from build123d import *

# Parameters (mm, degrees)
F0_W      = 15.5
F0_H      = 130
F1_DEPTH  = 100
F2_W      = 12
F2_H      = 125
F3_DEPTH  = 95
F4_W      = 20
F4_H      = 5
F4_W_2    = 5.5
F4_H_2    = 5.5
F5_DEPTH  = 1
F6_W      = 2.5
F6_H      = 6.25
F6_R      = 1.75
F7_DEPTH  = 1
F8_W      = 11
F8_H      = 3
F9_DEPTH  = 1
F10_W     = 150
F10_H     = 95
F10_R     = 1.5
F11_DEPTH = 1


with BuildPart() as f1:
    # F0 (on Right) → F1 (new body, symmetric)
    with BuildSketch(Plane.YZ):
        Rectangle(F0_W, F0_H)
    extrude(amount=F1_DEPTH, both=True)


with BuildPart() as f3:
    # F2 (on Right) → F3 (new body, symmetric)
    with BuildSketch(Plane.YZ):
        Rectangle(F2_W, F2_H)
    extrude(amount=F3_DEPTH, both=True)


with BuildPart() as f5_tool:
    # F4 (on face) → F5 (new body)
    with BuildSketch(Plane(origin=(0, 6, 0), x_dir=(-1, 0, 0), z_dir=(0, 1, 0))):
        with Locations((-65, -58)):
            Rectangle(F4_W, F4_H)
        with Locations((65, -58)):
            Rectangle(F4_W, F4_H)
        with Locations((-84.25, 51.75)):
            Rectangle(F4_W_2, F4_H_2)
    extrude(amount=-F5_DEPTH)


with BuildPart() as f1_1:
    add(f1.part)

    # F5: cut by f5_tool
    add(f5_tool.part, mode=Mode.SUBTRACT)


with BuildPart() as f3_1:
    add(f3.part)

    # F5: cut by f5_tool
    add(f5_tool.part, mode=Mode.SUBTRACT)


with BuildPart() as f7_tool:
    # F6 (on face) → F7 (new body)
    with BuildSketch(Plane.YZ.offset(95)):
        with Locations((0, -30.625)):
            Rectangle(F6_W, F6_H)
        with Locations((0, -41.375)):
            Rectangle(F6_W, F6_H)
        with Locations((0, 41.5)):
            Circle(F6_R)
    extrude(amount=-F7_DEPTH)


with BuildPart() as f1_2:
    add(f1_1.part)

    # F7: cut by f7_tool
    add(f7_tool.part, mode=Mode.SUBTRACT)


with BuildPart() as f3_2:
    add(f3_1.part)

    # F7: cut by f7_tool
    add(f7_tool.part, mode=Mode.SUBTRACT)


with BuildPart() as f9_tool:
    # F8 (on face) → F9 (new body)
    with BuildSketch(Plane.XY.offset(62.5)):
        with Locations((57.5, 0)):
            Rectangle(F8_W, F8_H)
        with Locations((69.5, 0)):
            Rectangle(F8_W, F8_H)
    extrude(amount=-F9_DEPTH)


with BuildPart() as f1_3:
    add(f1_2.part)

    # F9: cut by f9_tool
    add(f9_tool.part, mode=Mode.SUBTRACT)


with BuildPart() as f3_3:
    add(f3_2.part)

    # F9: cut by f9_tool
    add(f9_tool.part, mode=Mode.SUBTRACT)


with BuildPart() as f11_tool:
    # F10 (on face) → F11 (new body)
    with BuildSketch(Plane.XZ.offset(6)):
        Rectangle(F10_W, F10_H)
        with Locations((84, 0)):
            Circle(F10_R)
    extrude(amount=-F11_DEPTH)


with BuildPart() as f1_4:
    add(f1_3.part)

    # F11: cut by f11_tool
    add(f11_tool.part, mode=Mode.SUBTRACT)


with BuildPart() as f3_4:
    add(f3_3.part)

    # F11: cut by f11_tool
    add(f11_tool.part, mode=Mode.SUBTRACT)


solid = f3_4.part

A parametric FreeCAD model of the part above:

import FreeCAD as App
import Part
import Sketcher
from FreeCAD import Vector

doc = App.newDocument("Part")
body = doc.addObject("PartDesign::Body", "Body")

# Sketch on YZ plane
sketch1 = doc.addObject("Sketcher::SketchObject", "Sketch")
body.addObject(sketch1)
sketch1.AttachmentSupport = (doc.YZ_Plane, [""])
sketch1.MapMode = "FlatFace"
sketch1.addGeometry(Part.LineSegment(Vector(-7.75, 65, 0), Vector(-7.75, -65, 0)), False)
sketch1.addGeometry(Part.LineSegment(Vector(-7.75, -65, 0), Vector(7.75, -65, 0)), False)
sketch1.addGeometry(Part.LineSegment(Vector(7.75, -65, 0), Vector(7.75, 65, 0)), False)
sketch1.addGeometry(Part.LineSegment(Vector(7.75, 65, 0), Vector(-7.75, 65, 0)), False)
sketch1.addConstraint(Sketcher.Constraint("Coincident", 0, 2, 1, 1))
sketch1.addConstraint(Sketcher.Constraint("Coincident", 1, 2, 2, 1))
sketch1.addConstraint(Sketcher.Constraint("Coincident", 2, 2, 3, 1))
sketch1.addConstraint(Sketcher.Constraint("Coincident", 3, 2, 0, 1))
sketch1.addConstraint(Sketcher.Constraint("Vertical", 0))
sketch1.addConstraint(Sketcher.Constraint("Horizontal", 1))
sketch1.addConstraint(Sketcher.Constraint("Vertical", 2))
sketch1.addConstraint(Sketcher.Constraint("Horizontal", 3))
sketch1.addConstraint(Sketcher.Constraint("Symmetric", 0, 2, 2, 2, -1, 1))
sketch1.addConstraint(Sketcher.Constraint("DistanceY", 0, 2, 0, 1, 130.0))
sketch1.addConstraint(Sketcher.Constraint("DistanceX", 1, 1, 1, 2, 15.5))
pad1 = doc.addObject("PartDesign::Pad", "Pad")
body.addObject(pad1)
pad1.Profile = sketch1
pad1.Length = 200
pad1.Midplane = True
body2 = doc.addObject("PartDesign::Body", "Body001")

# Sketch on YZ plane
sketch2 = doc.addObject("Sketcher::SketchObject", "Sketch001")
body2.addObject(sketch2)
sketch2.AttachmentSupport = (doc.getObject("YZ_Plane001"), [""])
sketch2.MapMode = "FlatFace"
sketch2.addGeometry(Part.LineSegment(Vector(-6, 62.5, 0), Vector(-6, -62.5, 0)), False)
sketch2.addGeometry(Part.LineSegment(Vector(-6, -62.5, 0), Vector(6, -62.5, 0)), False)
sketch2.addGeometry(Part.LineSegment(Vector(6, -62.5, 0), Vector(6, 62.5, 0)), False)
sketch2.addGeometry(Part.LineSegment(Vector(6, 62.5, 0), Vector(-6, 62.5, 0)), False)
sketch2.addConstraint(Sketcher.Constraint("Coincident", 0, 2, 1, 1))
sketch2.addConstraint(Sketcher.Constraint("Coincident", 1, 2, 2, 1))
sketch2.addConstraint(Sketcher.Constraint("Coincident", 2, 2, 3, 1))
sketch2.addConstraint(Sketcher.Constraint("Coincident", 3, 2, 0, 1))
sketch2.addConstraint(Sketcher.Constraint("Vertical", 0))
sketch2.addConstraint(Sketcher.Constraint("Horizontal", 1))
sketch2.addConstraint(Sketcher.Constraint("Vertical", 2))
sketch2.addConstraint(Sketcher.Constraint("Horizontal", 3))
sketch2.addConstraint(Sketcher.Constraint("Symmetric", 0, 2, 2, 2, -1, 1))
sketch2.addConstraint(Sketcher.Constraint("DistanceX", 1, 1, 1, 2, 12.0))
sketch2.addConstraint(Sketcher.Constraint("DistanceY", 0, 2, 0, 1, 125.0))
pad2 = doc.addObject("PartDesign::Pad", "Pad001")
body2.addObject(pad2)
pad2.Profile = sketch2
pad2.Length = 190
pad2.Midplane = True
body3 = doc.addObject("PartDesign::Body", "Body002")
body3.AllowCompound = True

# Sketch on XZ plane
sketch3 = doc.addObject("Sketcher::SketchObject", "Sketch002")
body3.addObject(sketch3)
sketch3.AttachmentSupport = (doc.getObject("XZ_Plane002"), [""])
sketch3.MapMode = "FlatFace"
sketch3.AttachmentOffset = App.Placement(Vector(0, 0, -6), App.Rotation())
sketch3.addGeometry(Part.LineSegment(Vector(75, -55.5, 0), Vector(75, -60.5, 0)), False)
sketch3.addGeometry(Part.LineSegment(Vector(75, -60.5, 0), Vector(55, -60.5, 0)), False)
sketch3.addGeometry(Part.LineSegment(Vector(55, -60.5, 0), Vector(55, -55.5, 0)), False)
sketch3.addGeometry(Part.LineSegment(Vector(55, -55.5, 0), Vector(75, -55.5, 0)), False)
sketch3.addGeometry(Part.LineSegment(Vector(-55, -55.5, 0), Vector(-55, -60.5, 0)), False)
sketch3.addGeometry(Part.LineSegment(Vector(-55, -60.5, 0), Vector(-75, -60.5, 0)), False)
sketch3.addGeometry(Part.LineSegment(Vector(-75, -60.5, 0), Vector(-75, -55.5, 0)), False)
sketch3.addGeometry(Part.LineSegment(Vector(-75, -55.5, 0), Vector(-55, -55.5, 0)), False)
sketch3.addGeometry(Part.LineSegment(Vector(87, 54.5, 0), Vector(87, 49, 0)), False)
sketch3.addGeometry(Part.LineSegment(Vector(87, 49, 0), Vector(81.5, 49, 0)), False)
sketch3.addGeometry(Part.LineSegment(Vector(81.5, 49, 0), Vector(81.5, 54.5, 0)), False)
sketch3.addGeometry(Part.LineSegment(Vector(81.5, 54.5, 0), Vector(87, 54.5, 0)), False)
sketch3.addConstraint(Sketcher.Constraint("Coincident", 0, 2, 1, 1))
sketch3.addConstraint(Sketcher.Constraint("Coincident", 1, 2, 2, 1))
sketch3.addConstraint(Sketcher.Constraint("Coincident", 2, 2, 3, 1))
sketch3.addConstraint(Sketcher.Constraint("Coincident", 3, 2, 0, 1))
sketch3.addConstraint(Sketcher.Constraint("Coincident", 4, 2, 5, 1))
sketch3.addConstraint(Sketcher.Constraint("Coincident", 5, 2, 6, 1))
sketch3.addConstraint(Sketcher.Constraint("Coincident", 6, 2, 7, 1))
sketch3.addConstraint(Sketcher.Constraint("Coincident", 7, 2, 4, 1))
sketch3.addConstraint(Sketcher.Constraint("Coincident", 8, 2, 9, 1))
sketch3.addConstraint(Sketcher.Constraint("Coincident", 9, 2, 10, 1))
sketch3.addConstraint(Sketcher.Constraint("Coincident", 10, 2, 11, 1))
sketch3.addConstraint(Sketcher.Constraint("Coincident", 11, 2, 8, 1))
sketch3.addConstraint(Sketcher.Constraint("Vertical", 0))
sketch3.addConstraint(Sketcher.Constraint("Horizontal", 1))
sketch3.addConstraint(Sketcher.Constraint("Vertical", 2))
sketch3.addConstraint(Sketcher.Constraint("Horizontal", 3))
sketch3.addConstraint(Sketcher.Constraint("Vertical", 4))
sketch3.addConstraint(Sketcher.Constraint("Horizontal", 5))
sketch3.addConstraint(Sketcher.Constraint("Vertical", 6))
sketch3.addConstraint(Sketcher.Constraint("Horizontal", 7))
sketch3.addConstraint(Sketcher.Constraint("Vertical", 8))
sketch3.addConstraint(Sketcher.Constraint("Horizontal", 9))
sketch3.addConstraint(Sketcher.Constraint("Vertical", 10))
sketch3.addConstraint(Sketcher.Constraint("Horizontal", 11))
sketch3.addConstraint(Sketcher.Constraint("Symmetric", 1, 2, 4, 2, -2))
sketch3.addConstraint(Sketcher.Constraint("Symmetric", 3, 2, 6, 2, -2))
sketch3.addConstraint(Sketcher.Constraint("Equal", 11, 8))
sketch3.addConstraint(Sketcher.Constraint("DistanceX", 1, 2, 1, 1, 20.0))
sketch3.addConstraint(Sketcher.Constraint("DistanceY", 0, 2, 0, 1, 5.0))
sketch3.addConstraint(Sketcher.Constraint("DistanceX", 9, 2, 9, 1, 5.5))
sketch3.addConstraint(Sketcher.Constraint("DistanceX", -1, 1, 0, 2, 75.0))
sketch3.addConstraint(Sketcher.Constraint("DistanceX", -1, 1, 8, 2, 87.0))
sketch3.addConstraint(Sketcher.Constraint("DistanceY", -1, 1, 8, 2, 49.0))
sketch3.addConstraint(Sketcher.Constraint("DistanceY", 3, 2, 10, 2, 110.0))
pad3 = doc.addObject("PartDesign::Pad", "Pad002")
body3.addObject(pad3)
pad3.Profile = sketch3
pad3.Length = 1
doc.recompute()

body4 = doc.addObject("PartDesign::Body", "Body003")
body4.BaseFeature = body3
boolean = doc.addObject("PartDesign::Boolean", "Boolean")
body.addObject(boolean)
boolean.Type = "Cut"
boolean.addObjects([body4])
doc.recompute()

boolean2 = doc.addObject("PartDesign::Boolean", "Boolean001")
body2.addObject(boolean2)
boolean2.Type = "Cut"
boolean2.addObjects([body3])
body5 = doc.addObject("PartDesign::Body", "Body004")
body5.AllowCompound = True

# Sketch on YZ plane
sketch4 = doc.addObject("Sketcher::SketchObject", "Sketch003")
body5.addObject(sketch4)
sketch4.AttachmentSupport = (doc.getObject("YZ_Plane004"), [""])
sketch4.MapMode = "FlatFace"
sketch4.AttachmentOffset = App.Placement(Vector(0, 0, 95), App.Rotation())
sketch4.addGeometry(Part.LineSegment(Vector(-1.25, -27.5, 0), Vector(-1.25, -33.75, 0)), False)
sketch4.addGeometry(Part.LineSegment(Vector(-1.25, -33.75, 0), Vector(1.25, -33.75, 0)), False)
sketch4.addGeometry(Part.LineSegment(Vector(1.25, -33.75, 0), Vector(1.25, -27.5, 0)), False)
sketch4.addGeometry(Part.LineSegment(Vector(1.25, -27.5, 0), Vector(-1.25, -27.5, 0)), False)
sketch4.addGeometry(Part.LineSegment(Vector(-1.25, -38.25, 0), Vector(-1.25, -44.5, 0)), False)
sketch4.addGeometry(Part.LineSegment(Vector(-1.25, -44.5, 0), Vector(1.25, -44.5, 0)), False)
sketch4.addGeometry(Part.LineSegment(Vector(1.25, -44.5, 0), Vector(1.25, -38.25, 0)), False)
sketch4.addGeometry(Part.LineSegment(Vector(1.25, -38.25, 0), Vector(-1.25, -38.25, 0)), False)
sketch4.addGeometry(Part.Circle(Vector(0, 41.5, 0), Vector(0, 0, 1), 1.75), False)
sketch4.addConstraint(Sketcher.Constraint("Coincident", 0, 2, 1, 1))
sketch4.addConstraint(Sketcher.Constraint("Coincident", 1, 2, 2, 1))
sketch4.addConstraint(Sketcher.Constraint("Coincident", 2, 2, 3, 1))
sketch4.addConstraint(Sketcher.Constraint("Coincident", 3, 2, 0, 1))
sketch4.addConstraint(Sketcher.Constraint("Coincident", 4, 2, 5, 1))
sketch4.addConstraint(Sketcher.Constraint("Coincident", 5, 2, 6, 1))
sketch4.addConstraint(Sketcher.Constraint("Coincident", 6, 2, 7, 1))
sketch4.addConstraint(Sketcher.Constraint("Coincident", 7, 2, 4, 1))
sketch4.addConstraint(Sketcher.Constraint("Vertical", 0))
sketch4.addConstraint(Sketcher.Constraint("Horizontal", 1))
sketch4.addConstraint(Sketcher.Constraint("Vertical", 2))
sketch4.addConstraint(Sketcher.Constraint("Horizontal", 3))
sketch4.addConstraint(Sketcher.Constraint("Vertical", 4))
sketch4.addConstraint(Sketcher.Constraint("Horizontal", 5))
sketch4.addConstraint(Sketcher.Constraint("Vertical", 6))
sketch4.addConstraint(Sketcher.Constraint("Horizontal", 7))
sketch4.addConstraint(Sketcher.Constraint("PointOnObject", 8, 3, -2))
sketch4.addConstraint(Sketcher.Constraint("Vertical", 3, 2, 4, 2))
sketch4.addConstraint(Sketcher.Constraint("Vertical", 2, 2, 5, 2))
sketch4.addConstraint(Sketcher.Constraint("Equal", 2, 4))
sketch4.addConstraint(Sketcher.Constraint("Diameter", 8, 3.5))
sketch4.addConstraint(Sketcher.Constraint("DistanceX", 1, 1, 1, 2, 2.5))
sketch4.addConstraint(Sketcher.Constraint("DistanceY", 2, 2, 8, 3, 69.0))
sketch4.addConstraint(Sketcher.Constraint("DistanceY", 4, 2, 3, 2, 17.0))
sketch4.addConstraint(Sketcher.Constraint("DistanceY", 0, 2, 0, 1, 6.25))
sketch4.addConstraint(Sketcher.Constraint("DistanceY", -1, 1, 8, 3, 41.5))
sketch4.addConstraint(Sketcher.Constraint("DistanceX", 0, 2, -1, 1, 1.25))
pad4 = doc.addObject("PartDesign::Pad", "Pad003")
body5.addObject(pad4)
pad4.Profile = sketch4
pad4.Length = 1
pad4.Reversed = True
doc.recompute()

body6 = doc.addObject("PartDesign::Body", "Body005")
body6.BaseFeature = body5
boolean3 = doc.addObject("PartDesign::Boolean", "Boolean002")
body.addObject(boolean3)
boolean3.Type = "Cut"
boolean3.addObjects([body6])
doc.recompute()

boolean4 = doc.addObject("PartDesign::Boolean", "Boolean003")
body2.addObject(boolean4)
boolean4.Type = "Cut"
boolean4.addObjects([body5])
body7 = doc.addObject("PartDesign::Body", "Body006")
body7.AllowCompound = True

# Sketch on XY plane
sketch5 = doc.addObject("Sketcher::SketchObject", "Sketch004")
body7.addObject(sketch5)
sketch5.AttachmentSupport = (doc.getObject("XY_Plane006"), [""])
sketch5.MapMode = "FlatFace"
sketch5.AttachmentOffset = App.Placement(Vector(0, 0, 62.5), App.Rotation())
sketch5.addGeometry(Part.LineSegment(Vector(52, 1.5, 0), Vector(52, -1.5, 0)), False)
sketch5.addGeometry(Part.LineSegment(Vector(52, -1.5, 0), Vector(63, -1.5, 0)), False)
sketch5.addGeometry(Part.LineSegment(Vector(63, -1.5, 0), Vector(63, 1.5, 0)), False)
sketch5.addGeometry(Part.LineSegment(Vector(63, 1.5, 0), Vector(52, 1.5, 0)), False)
sketch5.addGeometry(Part.LineSegment(Vector(64, 1.5, 0), Vector(64, -1.5, 0)), False)
sketch5.addGeometry(Part.LineSegment(Vector(64, -1.5, 0), Vector(75, -1.5, 0)), False)
sketch5.addGeometry(Part.LineSegment(Vector(75, -1.5, 0), Vector(75, 1.5, 0)), False)
sketch5.addGeometry(Part.LineSegment(Vector(75, 1.5, 0), Vector(64, 1.5, 0)), False)
sketch5.addConstraint(Sketcher.Constraint("Coincident", 0, 2, 1, 1))
sketch5.addConstraint(Sketcher.Constraint("Coincident", 1, 2, 2, 1))
sketch5.addConstraint(Sketcher.Constraint("Coincident", 2, 2, 3, 1))
sketch5.addConstraint(Sketcher.Constraint("Coincident", 3, 2, 0, 1))
sketch5.addConstraint(Sketcher.Constraint("Coincident", 4, 2, 5, 1))
sketch5.addConstraint(Sketcher.Constraint("Coincident", 5, 2, 6, 1))
sketch5.addConstraint(Sketcher.Constraint("Coincident", 6, 2, 7, 1))
sketch5.addConstraint(Sketcher.Constraint("Coincident", 7, 2, 4, 1))
sketch5.addConstraint(Sketcher.Constraint("Vertical", 0))
sketch5.addConstraint(Sketcher.Constraint("Horizontal", 1))
sketch5.addConstraint(Sketcher.Constraint("Vertical", 2))
sketch5.addConstraint(Sketcher.Constraint("Horizontal", 3))
sketch5.addConstraint(Sketcher.Constraint("Vertical", 4))
sketch5.addConstraint(Sketcher.Constraint("Horizontal", 5))
sketch5.addConstraint(Sketcher.Constraint("Vertical", 6))
sketch5.addConstraint(Sketcher.Constraint("Horizontal", 7))
sketch5.addConstraint(Sketcher.Constraint("Horizontal", 1, 2, 4, 2))
sketch5.addConstraint(Sketcher.Constraint("Horizontal", 3, 2, 6, 2))
sketch5.addConstraint(Sketcher.Constraint("Equal", 3, 5))
sketch5.addConstraint(Sketcher.Constraint("DistanceX", 1, 1, 1, 2, 11.0))
sketch5.addConstraint(Sketcher.Constraint("DistanceY", 0, 2, 0, 1, 3.0))
sketch5.addConstraint(Sketcher.Constraint("DistanceX", -1, 1, 0, 2, 52.0))
sketch5.addConstraint(Sketcher.Constraint("DistanceX", -1, 1, 4, 2, 64.0))
sketch5.addConstraint(Sketcher.Constraint("DistanceY", 0, 2, -1, 1, 1.5))
pad5 = doc.addObject("PartDesign::Pad", "Pad004")
body7.addObject(pad5)
pad5.Profile = sketch5
pad5.Length = 1
pad5.Reversed = True
doc.recompute()

body8 = doc.addObject("PartDesign::Body", "Body007")
body8.BaseFeature = body7
boolean5 = doc.addObject("PartDesign::Boolean", "Boolean004")
body.addObject(boolean5)
boolean5.Type = "Cut"
boolean5.addObjects([body8])
doc.recompute()

boolean6 = doc.addObject("PartDesign::Boolean", "Boolean005")
body2.addObject(boolean6)
boolean6.Type = "Cut"
boolean6.addObjects([body7])
body9 = doc.addObject("PartDesign::Body", "Body008")
body9.AllowCompound = True

# Sketch on XZ plane
sketch6 = doc.addObject("Sketcher::SketchObject", "Sketch005")
body9.addObject(sketch6)
sketch6.AttachmentSupport = (doc.getObject("XZ_Plane008"), [""])
sketch6.MapMode = "FlatFace"
sketch6.AttachmentOffset = App.Placement(Vector(0, 0, 6), App.Rotation())
sketch6.addGeometry(Part.LineSegment(Vector(-75, 47.5, 0), Vector(-75, -47.5, 0)), False)
sketch6.addGeometry(Part.LineSegment(Vector(-75, -47.5, 0), Vector(75, -47.5, 0)), False)
sketch6.addGeometry(Part.LineSegment(Vector(75, -47.5, 0), Vector(75, 47.5, 0)), False)
sketch6.addGeometry(Part.LineSegment(Vector(75, 47.5, 0), Vector(-75, 47.5, 0)), False)
sketch6.addGeometry(Part.Circle(Vector(84, 0, 0), Vector(0, 0, 1), 1.5), False)
sketch6.addConstraint(Sketcher.Constraint("Coincident", 0, 2, 1, 1))
sketch6.addConstraint(Sketcher.Constraint("Coincident", 1, 2, 2, 1))
sketch6.addConstraint(Sketcher.Constraint("Coincident", 2, 2, 3, 1))
sketch6.addConstraint(Sketcher.Constraint("Coincident", 3, 2, 0, 1))
sketch6.addConstraint(Sketcher.Constraint("Vertical", 0))
sketch6.addConstraint(Sketcher.Constraint("Horizontal", 1))
sketch6.addConstraint(Sketcher.Constraint("Vertical", 2))
sketch6.addConstraint(Sketcher.Constraint("Horizontal", 3))
sketch6.addConstraint(Sketcher.Constraint("Symmetric", 0, 2, 2, 2, -1, 1))
sketch6.addConstraint(Sketcher.Constraint("PointOnObject", 4, 3, -1))
sketch6.addConstraint(Sketcher.Constraint("Diameter", 4, 3.0))
sketch6.addConstraint(Sketcher.Constraint("DistanceX", 1, 1, 1, 2, 150.0))
sketch6.addConstraint(Sketcher.Constraint("DistanceY", 0, 2, 0, 1, 95.0))
sketch6.addConstraint(Sketcher.Constraint("DistanceX", -1, 1, 4, 3, 84.0))
pad6 = doc.addObject("PartDesign::Pad", "Pad005")
body9.addObject(pad6)
pad6.Profile = sketch6
pad6.Length = 1
pad6.Reversed = True
doc.recompute()

body10 = doc.addObject("PartDesign::Body", "Body009")
body10.BaseFeature = body9
boolean7 = doc.addObject("PartDesign::Boolean", "Boolean006")
body.addObject(boolean7)
boolean7.Type = "Cut"
boolean7.addObjects([body10])
doc.recompute()

boolean8 = doc.addObject("PartDesign::Boolean", "Boolean007")
body2.addObject(boolean8)
boolean8.Type = "Cut"
boolean8.addObjects([body9])
body.Visibility = False

doc.recompute()
